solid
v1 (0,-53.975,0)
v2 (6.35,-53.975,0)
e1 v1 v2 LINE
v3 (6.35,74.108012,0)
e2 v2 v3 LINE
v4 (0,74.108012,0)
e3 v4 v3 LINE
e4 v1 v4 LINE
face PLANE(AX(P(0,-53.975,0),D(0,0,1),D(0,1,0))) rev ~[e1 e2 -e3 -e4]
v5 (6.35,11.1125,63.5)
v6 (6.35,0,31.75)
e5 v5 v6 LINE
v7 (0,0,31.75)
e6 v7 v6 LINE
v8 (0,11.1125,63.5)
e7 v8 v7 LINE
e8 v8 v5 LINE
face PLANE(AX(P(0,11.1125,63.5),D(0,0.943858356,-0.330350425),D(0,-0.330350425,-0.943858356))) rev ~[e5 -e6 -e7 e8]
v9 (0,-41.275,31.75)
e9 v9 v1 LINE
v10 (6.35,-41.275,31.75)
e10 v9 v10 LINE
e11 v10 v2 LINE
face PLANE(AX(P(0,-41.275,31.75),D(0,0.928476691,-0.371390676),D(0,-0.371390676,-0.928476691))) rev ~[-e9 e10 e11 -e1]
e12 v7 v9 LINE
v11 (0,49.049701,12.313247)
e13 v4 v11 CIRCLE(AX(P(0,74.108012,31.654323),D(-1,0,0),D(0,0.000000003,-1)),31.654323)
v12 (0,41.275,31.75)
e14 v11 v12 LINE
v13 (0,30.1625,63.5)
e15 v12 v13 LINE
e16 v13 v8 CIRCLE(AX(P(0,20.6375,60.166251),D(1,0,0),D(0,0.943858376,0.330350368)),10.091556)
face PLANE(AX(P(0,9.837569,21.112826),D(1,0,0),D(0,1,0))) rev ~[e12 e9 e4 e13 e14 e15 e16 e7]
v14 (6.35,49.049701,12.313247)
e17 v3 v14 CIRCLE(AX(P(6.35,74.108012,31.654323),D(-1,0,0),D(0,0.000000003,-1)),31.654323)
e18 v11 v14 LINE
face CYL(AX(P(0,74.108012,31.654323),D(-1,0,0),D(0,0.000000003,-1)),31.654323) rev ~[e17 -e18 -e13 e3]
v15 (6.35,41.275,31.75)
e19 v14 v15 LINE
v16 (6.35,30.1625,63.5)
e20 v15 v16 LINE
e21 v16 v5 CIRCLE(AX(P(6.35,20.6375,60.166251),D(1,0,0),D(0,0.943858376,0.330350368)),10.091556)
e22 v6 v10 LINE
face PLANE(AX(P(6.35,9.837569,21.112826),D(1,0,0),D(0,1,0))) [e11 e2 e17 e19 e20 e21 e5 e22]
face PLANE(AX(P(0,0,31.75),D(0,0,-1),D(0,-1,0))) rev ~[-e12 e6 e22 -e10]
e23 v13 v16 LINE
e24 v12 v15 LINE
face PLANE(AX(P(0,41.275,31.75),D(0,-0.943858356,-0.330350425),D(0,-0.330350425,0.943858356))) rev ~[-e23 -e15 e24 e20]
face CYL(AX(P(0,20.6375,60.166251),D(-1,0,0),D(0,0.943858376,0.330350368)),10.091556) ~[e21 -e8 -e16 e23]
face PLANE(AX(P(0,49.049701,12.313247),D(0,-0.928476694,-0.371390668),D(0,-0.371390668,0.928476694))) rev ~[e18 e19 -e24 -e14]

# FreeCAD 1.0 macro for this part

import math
import FreeCAD as App
import Part
import Sketcher
Q = App.Units.Quantity

doc = App.newDocument("Part")
body = doc.addObject("PartDesign::Body", "Body")

sketch1 = body.newObject("Sketcher::SketchObject", "Sketch")
sketch1.AttachmentSupport = (doc.getObject("YZ_Plane"), [""])
sketch1.MapMode = "FlatFace"
sketch1.addGeometry([
    Part.LineSegment(App.Vector(-54, 0, 0), App.Vector(74, 0, 0)),
    Part.ArcOfCircle(Part.Circle(App.Vector(74, 32, 0), App.Vector(0, 0, 1), 32), math.radians(-142), math.radians(-90)),
    Part.LineSegment(App.Vector(49, 12, 0), App.Vector(41, 32, 0)),
    Part.LineSegment(App.Vector(41, 32, 0), App.Vector(30, 64, 0)),
    Part.ArcOfCircle(Part.Circle(App.Vector(21, 60, 0), App.Vector(0, 0, 1), 10), math.radians(19), math.radians(161)),
    Part.LineSegment(App.Vector(11, 64, 0), App.Vector(0, 32, 0)),
    Part.LineSegment(App.Vector(0, 32, 0), App.Vector(-41, 32, 0)),
    Part.LineSegment(App.Vector(-41, 32, 0), App.Vector(-54, 0, 0)),
], False)
sketch1.addConstraint([
    Sketcher.Constraint("Tangent", 0, 2, 1, 2),
    Sketcher.Constraint("Coincident", 1, 1, 2, 1),
    Sketcher.Constraint("Coincident", 2, 2, 3, 1),
    Sketcher.Constraint("Tangent", 3, 2, 4, 1),
    Sketcher.Constraint("Tangent", 4, 2, 5, 1),
    Sketcher.Constraint("Coincident", 5, 2, 6, 1),
    Sketcher.Constraint("Coincident", 6, 2, 7, 1),
    Sketcher.Constraint("Coincident", 7, 2, 0, 1),
    Sketcher.Constraint("Horizontal", 0),
    Sketcher.Constraint("Horizontal", 6),
    Sketcher.Constraint("Symmetric", 2, 2, 6, 2, -2),
    Sketcher.Constraint("PointOnObject", 0, 2, -1),
    Sketcher.Constraint("PointOnObject", 5, 2, -2),
    Sketcher.Constraint("Horizontal", 3, 2, 4, 2),
    Sketcher.Constraint("DistanceY", -1, 1, 3, 2, Q("2.5 in")),
    Sketcher.Constraint("DistanceX", 7, 2, 6, 2, Q("0.5 in")),
    Sketcher.Constraint("DistanceX", 6, 2, 6, 1, Q("1.625 in")),
    Sketcher.Constraint("DistanceY", -1, 1, 2, 2, Q("1.25 in")),
    Sketcher.Constraint("DistanceX", 4, 2, 3, 2, Q("0.75 in")),
    Sketcher.Constraint("Radius", 1, Q("31.654323 mm")),
    Sketcher.Constraint("DistanceX", 0, 1, 0, 2, Q("128.083012 mm")),
    Sketcher.Constraint("DistanceX", -1, 1, 1, 1, Q("49.049701 mm")),
])
pad1 = body.newObject("PartDesign::Pad", "Pad")
pad1.Profile = sketch1
pad1.Length = Q("0.25 in")

doc.recompute()
